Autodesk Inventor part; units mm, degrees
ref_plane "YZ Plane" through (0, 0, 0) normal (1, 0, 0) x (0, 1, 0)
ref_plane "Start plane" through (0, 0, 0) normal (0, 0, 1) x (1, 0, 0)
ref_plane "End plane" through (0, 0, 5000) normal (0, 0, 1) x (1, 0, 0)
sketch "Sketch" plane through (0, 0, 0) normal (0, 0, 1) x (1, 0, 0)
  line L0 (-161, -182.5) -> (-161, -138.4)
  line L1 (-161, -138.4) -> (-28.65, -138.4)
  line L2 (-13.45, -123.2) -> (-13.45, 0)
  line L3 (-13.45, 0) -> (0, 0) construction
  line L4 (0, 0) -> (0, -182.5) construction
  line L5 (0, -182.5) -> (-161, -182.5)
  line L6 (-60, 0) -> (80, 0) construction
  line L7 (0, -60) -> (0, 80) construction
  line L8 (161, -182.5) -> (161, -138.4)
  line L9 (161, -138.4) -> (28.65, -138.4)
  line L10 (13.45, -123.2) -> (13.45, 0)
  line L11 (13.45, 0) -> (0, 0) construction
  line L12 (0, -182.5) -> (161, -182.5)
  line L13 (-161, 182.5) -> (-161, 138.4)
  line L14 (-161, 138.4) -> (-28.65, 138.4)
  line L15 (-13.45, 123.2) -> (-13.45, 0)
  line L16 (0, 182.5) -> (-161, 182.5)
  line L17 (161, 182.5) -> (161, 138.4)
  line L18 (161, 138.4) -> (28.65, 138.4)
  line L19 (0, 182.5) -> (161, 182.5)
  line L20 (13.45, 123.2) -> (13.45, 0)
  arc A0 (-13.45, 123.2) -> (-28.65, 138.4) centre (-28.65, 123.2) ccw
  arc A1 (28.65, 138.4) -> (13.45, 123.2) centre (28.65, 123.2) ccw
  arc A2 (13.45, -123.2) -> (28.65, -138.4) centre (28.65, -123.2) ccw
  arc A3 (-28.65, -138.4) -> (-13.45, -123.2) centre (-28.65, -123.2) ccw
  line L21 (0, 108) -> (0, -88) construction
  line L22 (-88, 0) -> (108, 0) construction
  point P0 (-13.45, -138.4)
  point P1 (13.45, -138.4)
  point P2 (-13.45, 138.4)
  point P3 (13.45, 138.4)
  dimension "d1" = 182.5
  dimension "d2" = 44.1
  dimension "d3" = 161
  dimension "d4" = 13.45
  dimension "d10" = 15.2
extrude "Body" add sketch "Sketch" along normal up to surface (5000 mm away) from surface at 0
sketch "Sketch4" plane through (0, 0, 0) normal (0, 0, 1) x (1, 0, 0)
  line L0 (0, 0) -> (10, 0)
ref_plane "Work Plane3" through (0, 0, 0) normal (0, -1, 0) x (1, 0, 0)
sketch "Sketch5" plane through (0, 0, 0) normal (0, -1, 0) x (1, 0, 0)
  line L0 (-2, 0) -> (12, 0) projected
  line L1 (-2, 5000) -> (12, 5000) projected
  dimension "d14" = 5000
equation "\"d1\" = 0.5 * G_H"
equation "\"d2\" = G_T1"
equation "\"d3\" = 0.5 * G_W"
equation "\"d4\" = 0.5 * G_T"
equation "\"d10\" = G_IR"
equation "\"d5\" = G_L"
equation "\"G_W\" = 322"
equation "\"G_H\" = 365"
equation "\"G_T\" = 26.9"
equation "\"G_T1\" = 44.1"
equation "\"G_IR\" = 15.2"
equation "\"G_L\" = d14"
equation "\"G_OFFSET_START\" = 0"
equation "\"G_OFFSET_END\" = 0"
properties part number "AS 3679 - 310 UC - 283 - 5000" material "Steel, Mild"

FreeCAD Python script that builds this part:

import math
import FreeCAD as App
import Part
import Sketcher

V = App.Vector
Q = App.Units.Quantity

doc = App.newDocument("Part")
body = doc.addObject("PartDesign::Body", "Body")

# Sketch on XY plane
sketch1 = doc.addObject("Sketcher::SketchObject", "Sketch")
body.addObject(sketch1)
sketch1.AttachmentSupport = (doc.XY_Plane, [""])
sketch1.MapMode = "FlatFace"
sketch1.addGeometry(Part.LineSegment(V(-161, -138.4, 0), V(-161, -182.5, 0)), False)
sketch1.addGeometry(Part.LineSegment(V(-161, -182.5, 0), V(161, -182.5, 0)), False)
sketch1.addGeometry(Part.LineSegment(V(161, -182.5, 0), V(161, -138.4, 0)), False)
sketch1.addGeometry(Part.LineSegment(V(161, -138.4, 0), V(28.65, -138.4, 0)), False)
sketch1.addGeometry(Part.ArcOfCircle(Part.Circle(V(28.65, -123.2, 0), V(0, 0, 1), 15.2), math.radians(180), math.radians(270)), False)
sketch1.addGeometry(Part.LineSegment(V(13.45, -123.2, 0), V(13.45, 123.2, 0)), False)
sketch1.addGeometry(Part.ArcOfCircle(Part.Circle(V(28.65, 123.2, 0), V(0, 0, 1), 15.2), math.radians(90), math.radians(180)), False)
sketch1.addGeometry(Part.LineSegment(V(28.65, 138.4, 0), V(161, 138.4, 0)), False)
sketch1.addGeometry(Part.LineSegment(V(161, 138.4, 0), V(161, 182.5, 0)), False)
sketch1.addGeometry(Part.LineSegment(V(161, 182.5, 0), V(-161, 182.5, 0)), False)
sketch1.addGeometry(Part.LineSegment(V(-161, 182.5, 0), V(-161, 138.4, 0)), False)
sketch1.addGeometry(Part.LineSegment(V(-161, 138.4, 0), V(-28.65, 138.4, 0)), False)
sketch1.addGeometry(Part.ArcOfCircle(Part.Circle(V(-28.65, 123.2, 0), V(0, 0, 1), 15.2), math.radians(0), math.radians(90)), False)
sketch1.addGeometry(Part.LineSegment(V(-13.45, 123.2, 0), V(-13.45, -123.2, 0)), False)
sketch1.addGeometry(Part.ArcOfCircle(Part.Circle(V(-28.65, -123.2, 0), V(0, 0, 1), 15.2), math.radians(-90), math.radians(0)), False)
sketch1.addGeometry(Part.LineSegment(V(-28.65, -138.4, 0), V(-161, -138.4, 0)), False)
sketch1.addConstraint(Sketcher.Constraint("Coincident", 0, 2, 1, 1))
sketch1.addConstraint(Sketcher.Constraint("Coincident", 1, 2, 2, 1))
sketch1.addConstraint(Sketcher.Constraint("Coincident", 2, 2, 3, 1))
sketch1.addConstraint(Sketcher.Constraint("Tangent", 3, 2, 4, 2))
sketch1.addConstraint(Sketcher.Constraint("Tangent", 4, 1, 5, 1))
sketch1.addConstraint(Sketcher.Constraint("Tangent", 5, 2, 6, 2))
sketch1.addConstraint(Sketcher.Constraint("Tangent", 6, 1, 7, 1))
sketch1.addConstraint(Sketcher.Constraint("Coincident", 7, 2, 8, 1))
sketch1.addConstraint(Sketcher.Constraint("Coincident", 8, 2, 9, 1))
sketch1.addConstraint(Sketcher.Constraint("Coincident", 9, 2, 10, 1))
sketch1.addConstraint(Sketcher.Constraint("Coincident", 10, 2, 11, 1))
sketch1.addConstraint(Sketcher.Constraint("Tangent", 11, 2, 12, 2))
sketch1.addConstraint(Sketcher.Constraint("Tangent", 12, 1, 13, 1))
sketch1.addConstraint(Sketcher.Constraint("Tangent", 13, 2, 14, 2))
sketch1.addConstraint(Sketcher.Constraint("Tangent", 14, 1, 15, 1))
sketch1.addConstraint(Sketcher.Constraint("Coincident", 15, 2, 0, 1))
sketch1.addConstraint(Sketcher.Constraint("Vertical", 0))
sketch1.addConstraint(Sketcher.Constraint("Horizontal", 1))
sketch1.addConstraint(Sketcher.Constraint("Vertical", 2))
sketch1.addConstraint(Sketcher.Constraint("Horizontal", 3))
sketch1.addConstraint(Sketcher.Constraint("Vertical", 5))
sketch1.addConstraint(Sketcher.Constraint("Horizontal", 7))
sketch1.addConstraint(Sketcher.Constraint("Vertical", 8))
sketch1.addConstraint(Sketcher.Constraint("Horizontal", 9))
sketch1.addConstraint(Sketcher.Constraint("Vertical", 10))
sketch1.addConstraint(Sketcher.Constraint("Horizontal", 11))
sketch1.addConstraint(Sketcher.Constraint("Vertical", 13))
sketch1.addConstraint(Sketcher.Constraint("Horizontal", 15))
sketch1.addConstraint(Sketcher.Constraint("Equal", 4, 6))
sketch1.addConstraint(Sketcher.Constraint("Equal", 6, 12))
sketch1.addConstraint(Sketcher.Constraint("Equal", 12, 14))
sketch1.addConstraint(Sketcher.Constraint("Symmetric", 4, 3, 12, 3, -1, 1))
sketch1.addConstraint(Sketcher.Constraint("Symmetric", 0, 2, 8, 2, -1, 1))
sketch1.addConstraint(Sketcher.Constraint("Symmetric", 7, 2, 10, 2, -2))
sketch1.addConstraint(Sketcher.Constraint("Symmetric", 2, 2, 15, 2, -2))
sketch1.addConstraint(Sketcher.Constraint("Radius", 4, Q("15.2 mm")))
sketch1.addConstraint(Sketcher.Constraint("DistanceY", 0, 2, 0, 1, Q("44.1 mm")))
sketch1.addConstraint(Sketcher.Constraint("DistanceX", 0, 2, -1, 1, Q("161 mm")))
sketch1.addConstraint(Sketcher.Constraint("DistanceY", 0, 2, -1, 1, Q("182.5 mm")))
sketch1.addConstraint(Sketcher.Constraint("DistanceX", -1, 1, 4, 1, Q("13.45 mm")))
pad1 = doc.addObject("PartDesign::Pad", "Pad")
body.addObject(pad1)
pad1.Profile = sketch1
pad1.Length = 5000

doc.recompute()
